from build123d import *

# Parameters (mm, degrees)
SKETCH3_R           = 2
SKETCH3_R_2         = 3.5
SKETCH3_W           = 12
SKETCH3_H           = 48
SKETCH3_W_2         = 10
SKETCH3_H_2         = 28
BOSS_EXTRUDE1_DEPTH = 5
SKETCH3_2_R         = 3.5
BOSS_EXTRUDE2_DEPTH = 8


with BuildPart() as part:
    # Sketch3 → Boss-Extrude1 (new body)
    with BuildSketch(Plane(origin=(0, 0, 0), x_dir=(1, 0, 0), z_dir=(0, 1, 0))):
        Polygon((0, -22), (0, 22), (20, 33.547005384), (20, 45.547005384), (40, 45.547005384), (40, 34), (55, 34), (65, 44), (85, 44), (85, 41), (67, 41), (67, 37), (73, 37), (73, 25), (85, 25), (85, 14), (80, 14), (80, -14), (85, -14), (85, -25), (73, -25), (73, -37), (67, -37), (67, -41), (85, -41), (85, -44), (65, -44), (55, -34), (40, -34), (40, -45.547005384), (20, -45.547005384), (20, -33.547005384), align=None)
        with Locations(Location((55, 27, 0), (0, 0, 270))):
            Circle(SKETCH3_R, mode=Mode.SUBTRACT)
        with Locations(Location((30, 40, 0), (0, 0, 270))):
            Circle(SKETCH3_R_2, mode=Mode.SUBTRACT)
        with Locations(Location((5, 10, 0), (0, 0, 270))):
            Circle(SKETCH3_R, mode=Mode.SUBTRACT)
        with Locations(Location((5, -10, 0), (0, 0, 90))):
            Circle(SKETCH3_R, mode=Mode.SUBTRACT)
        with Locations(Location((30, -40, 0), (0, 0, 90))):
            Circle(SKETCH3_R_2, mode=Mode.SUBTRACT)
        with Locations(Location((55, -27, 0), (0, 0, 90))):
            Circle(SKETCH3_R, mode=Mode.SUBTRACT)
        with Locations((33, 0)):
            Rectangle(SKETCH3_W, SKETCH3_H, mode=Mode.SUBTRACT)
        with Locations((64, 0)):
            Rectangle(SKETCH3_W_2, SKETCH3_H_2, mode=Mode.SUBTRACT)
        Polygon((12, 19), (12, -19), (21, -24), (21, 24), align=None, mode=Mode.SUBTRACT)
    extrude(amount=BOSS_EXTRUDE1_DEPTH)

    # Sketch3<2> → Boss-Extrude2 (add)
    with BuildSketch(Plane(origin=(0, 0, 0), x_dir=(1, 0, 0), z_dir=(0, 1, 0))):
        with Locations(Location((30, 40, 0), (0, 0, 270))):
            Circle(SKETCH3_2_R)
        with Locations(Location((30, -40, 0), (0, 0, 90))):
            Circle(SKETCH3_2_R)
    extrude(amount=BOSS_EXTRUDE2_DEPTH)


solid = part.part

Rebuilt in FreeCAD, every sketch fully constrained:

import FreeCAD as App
import Part
import Sketcher
from FreeCAD import Vector
Q = App.Units.Quantity


def add_polygon(sketch, points):
    """Adds a closed chain of lines whose ends are joined by coincident constraints."""
    first, n = sketch.GeometryCount, len(points)
    for a, b in zip(points, points[1:] + points[:1]):
        sketch.addGeometry(Part.LineSegment(App.Vector(*a, 0), App.Vector(*b, 0)), False)
    for i in range(n):
        sketch.addConstraint(Sketcher.Constraint("Coincident", first + i, 2, first + (i + 1) % n, 1))

doc = App.newDocument("Part")
body = doc.addObject("PartDesign::Body", "Body")

# Sketch on XZ plane
sketch1 = doc.addObject("Sketcher::SketchObject", "Sketch")
body.addObject(sketch1)
sketch1.AttachmentSupport = (doc.XZ_Plane, [""])
sketch1.MapMode = "FlatFace"
add_polygon(sketch1, [(0, -22), (0, 22), (20, 33.5), (20, 45.5), (40, 45.5), (40, 34), (55, 34), (65, 44), (85, 44), (85, 41), (67, 41), (67, 37), (73, 37), (73, 25), (85, 25), (85, 14), (80, 14), (80, -14), (85, -14), (85, -25), (73, -25), (73, -37), (67, -37), (67, -41), (85, -41), (85, -44), (65, -44), (55, -34), (40, -34), (40, -45.5), (20, -45.5), (20, -33.5)])  # lines 0-31
sketch1.addGeometry(Part.Circle(Vector(55, 27, 0), Vector(0, 0, 1), 2), False)  # 32
sketch1.addGeometry(Part.Circle(Vector(30, 40, 0), Vector(0, 0, 1), 3.5), False)  # 33
sketch1.addGeometry(Part.Circle(Vector(5, 10, 0), Vector(0, 0, 1), 2), False)  # 34
add_polygon(sketch1, [(59, 14), (59, -14), (69, -14), (69, 14)])  # lines 35-38
sketch1.addGeometry(Part.Circle(Vector(55, -27, 0), Vector(0, 0, 1), 2), False)  # 39
add_polygon(sketch1, [(27, 24), (27, -24), (39, -24), (39, 24)])  # lines 40-43
add_polygon(sketch1, [(12, -19), (21, -24), (21, 24), (12, 19)])  # lines 44-47
sketch1.addGeometry(Part.Circle(Vector(5, -10, 0), Vector(0, 0, 1), 2), False)  # 48
sketch1.addGeometry(Part.Circle(Vector(30, -40, 0), Vector(0, 0, 1), 3.5), False)  # 49
sketch1.addConstraint([
    Sketcher.Constraint("Vertical", 0),
    Sketcher.Constraint("Vertical", 2),
    Sketcher.Constraint("Horizontal", 3),
    Sketcher.Constraint("Vertical", 4),
    Sketcher.Constraint("Horizontal", 5),
    Sketcher.Constraint("Horizontal", 7),
    Sketcher.Constraint("Vertical", 8),
    Sketcher.Constraint("Horizontal", 9),
    Sketcher.Constraint("Vertical", 10),
    Sketcher.Constraint("Horizontal", 11),
    Sketcher.Constraint("Vertical", 12),
    Sketcher.Constraint("Horizontal", 13),
    Sketcher.Constraint("Vertical", 14),
    Sketcher.Constraint("Horizontal", 15),
    Sketcher.Constraint("Vertical", 16),
    Sketcher.Constraint("Horizontal", 17),
    Sketcher.Constraint("Vertical", 18),
    Sketcher.Constraint("Horizontal", 19),
    Sketcher.Constraint("Vertical", 20),
    Sketcher.Constraint("Horizontal", 21),
    Sketcher.Constraint("Vertical", 22),
    Sketcher.Constraint("Horizontal", 23),
    Sketcher.Constraint("Vertical", 24),
    Sketcher.Constraint("Horizontal", 25),
    Sketcher.Constraint("Horizontal", 27),
    Sketcher.Constraint("Vertical", 28),
    Sketcher.Constraint("Horizontal", 29),
    Sketcher.Constraint("Vertical", 30),
    Sketcher.Constraint("Vertical", 35),
    Sketcher.Constraint("Horizontal", 36),
    Sketcher.Constraint("Vertical", 37),
    Sketcher.Constraint("Horizontal", 38),
    Sketcher.Constraint("Vertical", 40),
    Sketcher.Constraint("Horizontal", 41),
    Sketcher.Constraint("Vertical", 42),
    Sketcher.Constraint("Horizontal", 43),
    Sketcher.Constraint("Vertical", 45),
    Sketcher.Constraint("Vertical", 47),
    Sketcher.Constraint("Equal", 32, 34),
    Sketcher.Constraint("Equal", 34, 39),
    Sketcher.Constraint("Equal", 39, 48),
    Sketcher.Constraint("Equal", 33, 49),
    Sketcher.Constraint("Symmetric", 0, 2, 31, 2, -1, 1),
    Sketcher.Constraint("Symmetric", 32, 3, 39, 3, -1),
    Sketcher.Constraint("Symmetric", 34, 3, 48, 3, -1),
    Sketcher.Constraint("Symmetric", 33, 3, 49, 3, -1),
    Sketcher.Constraint("Symmetric", 14, 2, 17, 2, -1),
    Sketcher.Constraint("Symmetric", 12, 2, 19, 2, -1),
    Sketcher.Constraint("Symmetric", 10, 2, 21, 2, -1),
    Sketcher.Constraint("Symmetric", 8, 2, 23, 2, -1),
    Sketcher.Constraint("Symmetric", 6, 2, 25, 2, -1),
    Sketcher.Constraint("Symmetric", 5, 2, 26, 2, -1),
    Sketcher.Constraint("Symmetric", 3, 2, 28, 2, -1),
    Sketcher.Constraint("Symmetric", 1, 2, 30, 2, -1),
    Sketcher.Constraint("Perpendicular", 6, 26),
    Sketcher.Constraint("Horizontal", 17, 2, 35, 2),
    Sketcher.Constraint("Horizontal", 15, 2, 37, 2),
    Sketcher.Constraint("Horizontal", 41, 2, 44, 2),
    Sketcher.Constraint("Horizontal", 43, 2, 45, 2),
    Sketcher.Constraint("Vertical", 39, 3, 5, 2),
    Sketcher.Constraint("Vertical", 8, 2, 13, 2),
    Sketcher.Constraint("Equal", 3, 7),
    Sketcher.Constraint("Equal", 19, 41),
    Sketcher.Constraint("Equal", 43, 2),
    Sketcher.Constraint("Equal", 2, 12),
    Sketcher.Constraint("Equal", 44, 46),
    Sketcher.Constraint("Diameter", 32, 4.0),
    Sketcher.Constraint("Diameter", 33, 7.0),
    Sketcher.Constraint("DistanceX", 3, 1, 3, 2, 20.0),
    Sketcher.Constraint("DistanceX", 5, 1, 5, 2, 15.0),
    Sketcher.Constraint("DistanceX", 9, 2, 9, 1, 18.0),
    Sketcher.Constraint("DistanceX", 11, 1, 11, 2, 6.0),
    Sketcher.Constraint("DistanceX", 15, 2, 15, 1, 5.0),
    Sketcher.Constraint("DistanceX", 36, 1, 36, 2, 10.0),
    Sketcher.Constraint("DistanceY", 0, 1, 0, 2, 44.0),
    Sketcher.Constraint("DistanceY", 8, 2, 8, 1, 3.0),
    Sketcher.Constraint("DistanceY", 10, 2, 10, 1, 4.0),
    Sketcher.Constraint("DistanceY", 14, 2, 14, 1, 11.0),
    Sketcher.Constraint("DistanceY", 16, 2, 16, 1, 28.0),
    Sketcher.Constraint("DistanceY", 40, 2, 40, 1, 48.0),
    Sketcher.Constraint("DistanceY", 47, 2, 47, 1, 38.0),
    Sketcher.Constraint("Angle", 1, Q("30 deg")),
    Sketcher.Constraint("DistanceX", -1, 1, 32, 3, 55.0),
    Sketcher.Constraint("DistanceY", -1, 1, 32, 3, 27.0),
    Sketcher.Constraint("DistanceX", -1, 1, 33, 3, 30.0),
    Sketcher.Constraint("DistanceY", -1, 1, 33, 3, 40.0),
    Sketcher.Constraint("DistanceX", -1, 1, 34, 3, 5.0),
    Sketcher.Constraint("DistanceY", -1, 1, 34, 3, 10.0),
    Sketcher.Constraint("DistanceY", -1, 1, 4, 2, 34.0),
    Sketcher.Constraint("DistanceX", -1, 1, 35, 2, 59.0),
    Sketcher.Constraint("DistanceX", -1, 1, 40, 2, 27.0),
    Sketcher.Constraint("DistanceY", 40, 2, -1, 1, 24.0),
    Sketcher.Constraint("DistanceX", -1, 1, 44, 2, 21.0),
    Sketcher.Constraint("DistanceX", -1, 1, 46, 2, 12.0),
])
pad1 = doc.addObject("PartDesign::Pad", "Pad")
body.addObject(pad1)
pad1.Profile = sketch1
pad1.Length = 5
pad1.Reversed = True

# Sketch on XZ plane
sketch2 = doc.addObject("Sketcher::SketchObject", "Sketch001")
body.addObject(sketch2)
sketch2.AttachmentSupport = (doc.XZ_Plane, [""])
sketch2.MapMode = "FlatFace"
sketch2.addGeometry([
    Part.Circle(Vector(30, -40, 0), Vector(0, 0, 1), 3.5),
    Part.Circle(Vector(30, 40, 0), Vector(0, 0, 1), 3.5),
], False)
sketch2.addConstraint([
    Sketcher.Constraint("Equal", 0, 1),
    Sketcher.Constraint("Symmetric", 0, 3, 1, 3, -1),
    Sketcher.Constraint("Diameter", 0, 7.0),
    Sketcher.Constraint("DistanceX", -1, 1, 0, 3, 30.0),
    Sketcher.Constraint("DistanceY", 0, 3, -1, 1, 40.0),
])
pad2 = doc.addObject("PartDesign::Pad", "Pad001")
body.addObject(pad2)
pad2.Profile = sketch2
pad2.Length = 8
pad2.Reversed = True

doc.recompute()
